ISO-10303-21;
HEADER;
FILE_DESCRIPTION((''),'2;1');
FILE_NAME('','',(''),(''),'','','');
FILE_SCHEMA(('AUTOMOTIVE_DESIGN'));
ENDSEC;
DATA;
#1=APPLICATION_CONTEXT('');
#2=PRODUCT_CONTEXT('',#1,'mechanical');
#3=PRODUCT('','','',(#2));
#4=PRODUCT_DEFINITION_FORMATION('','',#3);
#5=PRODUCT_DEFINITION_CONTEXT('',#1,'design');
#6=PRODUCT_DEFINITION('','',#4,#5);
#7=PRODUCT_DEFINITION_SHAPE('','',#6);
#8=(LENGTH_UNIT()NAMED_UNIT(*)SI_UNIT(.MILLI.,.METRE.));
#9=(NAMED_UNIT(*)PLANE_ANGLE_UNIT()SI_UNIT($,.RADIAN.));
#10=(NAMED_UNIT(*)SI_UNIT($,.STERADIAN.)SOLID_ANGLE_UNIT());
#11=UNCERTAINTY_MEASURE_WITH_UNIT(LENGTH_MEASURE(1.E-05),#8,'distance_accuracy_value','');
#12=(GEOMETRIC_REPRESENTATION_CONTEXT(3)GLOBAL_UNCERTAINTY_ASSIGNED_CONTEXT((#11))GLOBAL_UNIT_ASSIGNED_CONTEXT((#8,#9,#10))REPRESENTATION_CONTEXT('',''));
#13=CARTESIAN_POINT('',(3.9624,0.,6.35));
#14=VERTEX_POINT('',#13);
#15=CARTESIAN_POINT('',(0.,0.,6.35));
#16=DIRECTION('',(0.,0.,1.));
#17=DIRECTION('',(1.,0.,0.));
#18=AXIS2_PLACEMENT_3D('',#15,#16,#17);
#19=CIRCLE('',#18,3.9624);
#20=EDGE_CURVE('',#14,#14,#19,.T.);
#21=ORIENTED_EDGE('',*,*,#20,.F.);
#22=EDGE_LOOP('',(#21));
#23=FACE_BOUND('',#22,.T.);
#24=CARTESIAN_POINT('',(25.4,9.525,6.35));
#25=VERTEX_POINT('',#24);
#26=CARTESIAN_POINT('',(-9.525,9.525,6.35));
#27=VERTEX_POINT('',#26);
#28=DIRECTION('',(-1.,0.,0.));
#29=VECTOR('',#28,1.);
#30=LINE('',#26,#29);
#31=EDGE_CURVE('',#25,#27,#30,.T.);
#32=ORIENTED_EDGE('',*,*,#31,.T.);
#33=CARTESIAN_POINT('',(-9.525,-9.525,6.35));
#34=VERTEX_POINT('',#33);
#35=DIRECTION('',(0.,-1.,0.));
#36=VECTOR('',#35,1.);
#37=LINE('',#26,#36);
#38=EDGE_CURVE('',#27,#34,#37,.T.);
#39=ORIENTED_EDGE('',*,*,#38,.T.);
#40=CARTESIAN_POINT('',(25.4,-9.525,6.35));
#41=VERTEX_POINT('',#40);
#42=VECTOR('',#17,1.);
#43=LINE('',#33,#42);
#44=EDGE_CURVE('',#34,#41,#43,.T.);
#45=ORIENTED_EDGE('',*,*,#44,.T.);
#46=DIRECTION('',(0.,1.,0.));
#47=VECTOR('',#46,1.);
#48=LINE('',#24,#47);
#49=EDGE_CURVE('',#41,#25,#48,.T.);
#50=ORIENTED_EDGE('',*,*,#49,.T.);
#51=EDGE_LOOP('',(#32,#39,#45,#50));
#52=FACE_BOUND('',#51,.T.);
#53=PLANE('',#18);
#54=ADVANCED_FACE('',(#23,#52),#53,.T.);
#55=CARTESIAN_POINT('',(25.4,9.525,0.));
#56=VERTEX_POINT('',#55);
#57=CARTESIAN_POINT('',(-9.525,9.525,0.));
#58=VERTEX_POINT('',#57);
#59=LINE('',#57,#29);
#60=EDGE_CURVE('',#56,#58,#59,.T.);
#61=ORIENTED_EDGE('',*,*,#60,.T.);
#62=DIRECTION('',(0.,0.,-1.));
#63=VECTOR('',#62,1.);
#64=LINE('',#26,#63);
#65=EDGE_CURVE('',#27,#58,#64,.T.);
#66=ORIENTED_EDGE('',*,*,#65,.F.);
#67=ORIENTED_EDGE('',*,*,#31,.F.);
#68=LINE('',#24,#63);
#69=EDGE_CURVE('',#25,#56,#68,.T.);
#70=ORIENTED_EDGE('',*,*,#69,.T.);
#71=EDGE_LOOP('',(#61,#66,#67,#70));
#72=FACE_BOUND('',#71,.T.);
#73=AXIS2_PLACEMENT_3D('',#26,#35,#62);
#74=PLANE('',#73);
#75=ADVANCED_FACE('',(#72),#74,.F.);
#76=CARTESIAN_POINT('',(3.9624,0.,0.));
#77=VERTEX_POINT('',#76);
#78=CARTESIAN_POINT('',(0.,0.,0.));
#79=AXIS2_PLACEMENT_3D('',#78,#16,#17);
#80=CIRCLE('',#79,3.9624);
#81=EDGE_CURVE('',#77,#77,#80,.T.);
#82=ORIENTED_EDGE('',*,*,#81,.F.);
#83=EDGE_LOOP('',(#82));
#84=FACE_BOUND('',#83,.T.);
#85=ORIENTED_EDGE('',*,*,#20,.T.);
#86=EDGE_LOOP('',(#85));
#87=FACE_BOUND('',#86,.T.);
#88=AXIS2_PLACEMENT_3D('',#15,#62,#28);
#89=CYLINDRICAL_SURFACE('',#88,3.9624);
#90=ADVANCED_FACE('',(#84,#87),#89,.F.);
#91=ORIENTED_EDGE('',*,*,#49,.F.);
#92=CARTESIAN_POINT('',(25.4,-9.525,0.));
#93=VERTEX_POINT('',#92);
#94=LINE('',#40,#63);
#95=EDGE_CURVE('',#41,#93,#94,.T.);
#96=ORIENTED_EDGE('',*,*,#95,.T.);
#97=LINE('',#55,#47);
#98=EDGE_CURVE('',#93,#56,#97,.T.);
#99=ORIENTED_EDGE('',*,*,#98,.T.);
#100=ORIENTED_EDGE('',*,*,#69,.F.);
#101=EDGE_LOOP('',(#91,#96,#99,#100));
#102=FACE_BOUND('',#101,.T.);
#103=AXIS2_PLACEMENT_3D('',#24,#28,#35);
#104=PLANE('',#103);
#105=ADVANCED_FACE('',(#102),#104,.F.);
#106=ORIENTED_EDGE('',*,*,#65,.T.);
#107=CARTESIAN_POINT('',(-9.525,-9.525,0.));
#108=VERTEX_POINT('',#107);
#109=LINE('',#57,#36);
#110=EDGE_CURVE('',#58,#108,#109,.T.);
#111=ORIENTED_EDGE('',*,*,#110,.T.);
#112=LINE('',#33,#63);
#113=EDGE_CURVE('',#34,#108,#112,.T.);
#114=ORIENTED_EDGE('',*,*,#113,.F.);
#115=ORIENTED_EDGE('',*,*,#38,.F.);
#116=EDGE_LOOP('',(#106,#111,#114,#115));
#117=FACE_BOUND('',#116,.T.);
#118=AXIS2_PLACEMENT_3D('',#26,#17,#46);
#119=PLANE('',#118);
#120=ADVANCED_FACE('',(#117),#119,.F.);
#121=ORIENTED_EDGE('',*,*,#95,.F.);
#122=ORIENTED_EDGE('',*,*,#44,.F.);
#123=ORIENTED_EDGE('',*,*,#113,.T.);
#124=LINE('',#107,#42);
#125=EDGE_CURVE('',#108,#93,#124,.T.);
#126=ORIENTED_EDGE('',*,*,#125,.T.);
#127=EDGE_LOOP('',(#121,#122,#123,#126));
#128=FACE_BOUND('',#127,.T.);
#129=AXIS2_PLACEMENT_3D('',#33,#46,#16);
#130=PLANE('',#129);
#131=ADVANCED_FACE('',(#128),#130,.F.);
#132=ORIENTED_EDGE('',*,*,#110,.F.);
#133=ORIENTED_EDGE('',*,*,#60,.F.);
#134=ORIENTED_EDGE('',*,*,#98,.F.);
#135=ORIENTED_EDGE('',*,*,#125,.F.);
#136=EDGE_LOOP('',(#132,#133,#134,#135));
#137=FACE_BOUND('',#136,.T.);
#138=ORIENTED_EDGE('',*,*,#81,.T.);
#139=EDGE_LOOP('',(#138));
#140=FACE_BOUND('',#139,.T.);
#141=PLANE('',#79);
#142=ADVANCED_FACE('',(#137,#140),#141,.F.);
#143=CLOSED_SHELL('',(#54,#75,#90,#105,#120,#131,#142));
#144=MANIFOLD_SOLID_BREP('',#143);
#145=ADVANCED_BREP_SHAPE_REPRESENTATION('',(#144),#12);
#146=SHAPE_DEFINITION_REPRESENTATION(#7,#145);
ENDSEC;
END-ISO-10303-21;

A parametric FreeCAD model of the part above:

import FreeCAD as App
import Part
import Sketcher
Q = App.Units.Quantity

doc = App.newDocument("Part")
body = doc.addObject("PartDesign::Body", "Body")

# Sketch on XY plane
sketch1 = doc.addObject("Sketcher::SketchObject", "Sketch")
body.addObject(sketch1)
sketch1.AttachmentSupport = (doc.XY_Plane, [""])
sketch1.MapMode = "FlatFace"
sketch1.addGeometry(Part.LineSegment(App.Vector(-9.525, 9.525, 0), App.Vector(-9.525, -9.525, 0)), False)
sketch1.addGeometry(Part.LineSegment(App.Vector(-9.525, -9.525, 0), App.Vector(25.4, -9.525, 0)), False)
sketch1.addGeometry(Part.LineSegment(App.Vector(25.4, -9.525, 0), App.Vector(25.4, 9.525, 0)), False)
sketch1.addGeometry(Part.LineSegment(App.Vector(25.4, 9.525, 0), App.Vector(-9.525, 9.525, 0)), False)
sketch1.addGeometry(Part.Circle(App.Vector(0, 0, 0), App.Vector(0, 0, 1), 3.9624), False)
sketch1.addConstraint(Sketcher.Constraint("Coincident", 0, 2, 1, 1))
sketch1.addConstraint(Sketcher.Constraint("Coincident", 1, 2, 2, 1))
sketch1.addConstraint(Sketcher.Constraint("Coincident", 2, 2, 3, 1))
sketch1.addConstraint(Sketcher.Constraint("Coincident", 3, 2, 0, 1))
sketch1.addConstraint(Sketcher.Constraint("Vertical", 0))
sketch1.addConstraint(Sketcher.Constraint("Horizontal", 1))
sketch1.addConstraint(Sketcher.Constraint("Vertical", 2))
sketch1.addConstraint(Sketcher.Constraint("Horizontal", 3))
sketch1.addConstraint(Sketcher.Constraint("Coincident", 4, 3, -1, 1))
sketch1.addConstraint(Sketcher.Constraint("Diameter", 4, Q("0.312 in")))
sketch1.addConstraint(Sketcher.Constraint("DistanceX", -1, 1, 1, 2, Q("1 in")))
sketch1.addConstraint(Sketcher.Constraint("DistanceY", 0, 2, 0, 1, Q("0.75 in")))
sketch1.addConstraint(Sketcher.Constraint("DistanceX", 1, 1, 1, 2, Q("1.375 in")))
sketch1.addConstraint(Sketcher.Constraint("DistanceY", 0, 2, -1, 1, Q("0.375 in")))
pad1 = doc.addObject("PartDesign::Pad", "Pad")
body.addObject(pad1)
pad1.Profile = sketch1
pad1.Length = Q("0.25 in")

doc.recompute()
